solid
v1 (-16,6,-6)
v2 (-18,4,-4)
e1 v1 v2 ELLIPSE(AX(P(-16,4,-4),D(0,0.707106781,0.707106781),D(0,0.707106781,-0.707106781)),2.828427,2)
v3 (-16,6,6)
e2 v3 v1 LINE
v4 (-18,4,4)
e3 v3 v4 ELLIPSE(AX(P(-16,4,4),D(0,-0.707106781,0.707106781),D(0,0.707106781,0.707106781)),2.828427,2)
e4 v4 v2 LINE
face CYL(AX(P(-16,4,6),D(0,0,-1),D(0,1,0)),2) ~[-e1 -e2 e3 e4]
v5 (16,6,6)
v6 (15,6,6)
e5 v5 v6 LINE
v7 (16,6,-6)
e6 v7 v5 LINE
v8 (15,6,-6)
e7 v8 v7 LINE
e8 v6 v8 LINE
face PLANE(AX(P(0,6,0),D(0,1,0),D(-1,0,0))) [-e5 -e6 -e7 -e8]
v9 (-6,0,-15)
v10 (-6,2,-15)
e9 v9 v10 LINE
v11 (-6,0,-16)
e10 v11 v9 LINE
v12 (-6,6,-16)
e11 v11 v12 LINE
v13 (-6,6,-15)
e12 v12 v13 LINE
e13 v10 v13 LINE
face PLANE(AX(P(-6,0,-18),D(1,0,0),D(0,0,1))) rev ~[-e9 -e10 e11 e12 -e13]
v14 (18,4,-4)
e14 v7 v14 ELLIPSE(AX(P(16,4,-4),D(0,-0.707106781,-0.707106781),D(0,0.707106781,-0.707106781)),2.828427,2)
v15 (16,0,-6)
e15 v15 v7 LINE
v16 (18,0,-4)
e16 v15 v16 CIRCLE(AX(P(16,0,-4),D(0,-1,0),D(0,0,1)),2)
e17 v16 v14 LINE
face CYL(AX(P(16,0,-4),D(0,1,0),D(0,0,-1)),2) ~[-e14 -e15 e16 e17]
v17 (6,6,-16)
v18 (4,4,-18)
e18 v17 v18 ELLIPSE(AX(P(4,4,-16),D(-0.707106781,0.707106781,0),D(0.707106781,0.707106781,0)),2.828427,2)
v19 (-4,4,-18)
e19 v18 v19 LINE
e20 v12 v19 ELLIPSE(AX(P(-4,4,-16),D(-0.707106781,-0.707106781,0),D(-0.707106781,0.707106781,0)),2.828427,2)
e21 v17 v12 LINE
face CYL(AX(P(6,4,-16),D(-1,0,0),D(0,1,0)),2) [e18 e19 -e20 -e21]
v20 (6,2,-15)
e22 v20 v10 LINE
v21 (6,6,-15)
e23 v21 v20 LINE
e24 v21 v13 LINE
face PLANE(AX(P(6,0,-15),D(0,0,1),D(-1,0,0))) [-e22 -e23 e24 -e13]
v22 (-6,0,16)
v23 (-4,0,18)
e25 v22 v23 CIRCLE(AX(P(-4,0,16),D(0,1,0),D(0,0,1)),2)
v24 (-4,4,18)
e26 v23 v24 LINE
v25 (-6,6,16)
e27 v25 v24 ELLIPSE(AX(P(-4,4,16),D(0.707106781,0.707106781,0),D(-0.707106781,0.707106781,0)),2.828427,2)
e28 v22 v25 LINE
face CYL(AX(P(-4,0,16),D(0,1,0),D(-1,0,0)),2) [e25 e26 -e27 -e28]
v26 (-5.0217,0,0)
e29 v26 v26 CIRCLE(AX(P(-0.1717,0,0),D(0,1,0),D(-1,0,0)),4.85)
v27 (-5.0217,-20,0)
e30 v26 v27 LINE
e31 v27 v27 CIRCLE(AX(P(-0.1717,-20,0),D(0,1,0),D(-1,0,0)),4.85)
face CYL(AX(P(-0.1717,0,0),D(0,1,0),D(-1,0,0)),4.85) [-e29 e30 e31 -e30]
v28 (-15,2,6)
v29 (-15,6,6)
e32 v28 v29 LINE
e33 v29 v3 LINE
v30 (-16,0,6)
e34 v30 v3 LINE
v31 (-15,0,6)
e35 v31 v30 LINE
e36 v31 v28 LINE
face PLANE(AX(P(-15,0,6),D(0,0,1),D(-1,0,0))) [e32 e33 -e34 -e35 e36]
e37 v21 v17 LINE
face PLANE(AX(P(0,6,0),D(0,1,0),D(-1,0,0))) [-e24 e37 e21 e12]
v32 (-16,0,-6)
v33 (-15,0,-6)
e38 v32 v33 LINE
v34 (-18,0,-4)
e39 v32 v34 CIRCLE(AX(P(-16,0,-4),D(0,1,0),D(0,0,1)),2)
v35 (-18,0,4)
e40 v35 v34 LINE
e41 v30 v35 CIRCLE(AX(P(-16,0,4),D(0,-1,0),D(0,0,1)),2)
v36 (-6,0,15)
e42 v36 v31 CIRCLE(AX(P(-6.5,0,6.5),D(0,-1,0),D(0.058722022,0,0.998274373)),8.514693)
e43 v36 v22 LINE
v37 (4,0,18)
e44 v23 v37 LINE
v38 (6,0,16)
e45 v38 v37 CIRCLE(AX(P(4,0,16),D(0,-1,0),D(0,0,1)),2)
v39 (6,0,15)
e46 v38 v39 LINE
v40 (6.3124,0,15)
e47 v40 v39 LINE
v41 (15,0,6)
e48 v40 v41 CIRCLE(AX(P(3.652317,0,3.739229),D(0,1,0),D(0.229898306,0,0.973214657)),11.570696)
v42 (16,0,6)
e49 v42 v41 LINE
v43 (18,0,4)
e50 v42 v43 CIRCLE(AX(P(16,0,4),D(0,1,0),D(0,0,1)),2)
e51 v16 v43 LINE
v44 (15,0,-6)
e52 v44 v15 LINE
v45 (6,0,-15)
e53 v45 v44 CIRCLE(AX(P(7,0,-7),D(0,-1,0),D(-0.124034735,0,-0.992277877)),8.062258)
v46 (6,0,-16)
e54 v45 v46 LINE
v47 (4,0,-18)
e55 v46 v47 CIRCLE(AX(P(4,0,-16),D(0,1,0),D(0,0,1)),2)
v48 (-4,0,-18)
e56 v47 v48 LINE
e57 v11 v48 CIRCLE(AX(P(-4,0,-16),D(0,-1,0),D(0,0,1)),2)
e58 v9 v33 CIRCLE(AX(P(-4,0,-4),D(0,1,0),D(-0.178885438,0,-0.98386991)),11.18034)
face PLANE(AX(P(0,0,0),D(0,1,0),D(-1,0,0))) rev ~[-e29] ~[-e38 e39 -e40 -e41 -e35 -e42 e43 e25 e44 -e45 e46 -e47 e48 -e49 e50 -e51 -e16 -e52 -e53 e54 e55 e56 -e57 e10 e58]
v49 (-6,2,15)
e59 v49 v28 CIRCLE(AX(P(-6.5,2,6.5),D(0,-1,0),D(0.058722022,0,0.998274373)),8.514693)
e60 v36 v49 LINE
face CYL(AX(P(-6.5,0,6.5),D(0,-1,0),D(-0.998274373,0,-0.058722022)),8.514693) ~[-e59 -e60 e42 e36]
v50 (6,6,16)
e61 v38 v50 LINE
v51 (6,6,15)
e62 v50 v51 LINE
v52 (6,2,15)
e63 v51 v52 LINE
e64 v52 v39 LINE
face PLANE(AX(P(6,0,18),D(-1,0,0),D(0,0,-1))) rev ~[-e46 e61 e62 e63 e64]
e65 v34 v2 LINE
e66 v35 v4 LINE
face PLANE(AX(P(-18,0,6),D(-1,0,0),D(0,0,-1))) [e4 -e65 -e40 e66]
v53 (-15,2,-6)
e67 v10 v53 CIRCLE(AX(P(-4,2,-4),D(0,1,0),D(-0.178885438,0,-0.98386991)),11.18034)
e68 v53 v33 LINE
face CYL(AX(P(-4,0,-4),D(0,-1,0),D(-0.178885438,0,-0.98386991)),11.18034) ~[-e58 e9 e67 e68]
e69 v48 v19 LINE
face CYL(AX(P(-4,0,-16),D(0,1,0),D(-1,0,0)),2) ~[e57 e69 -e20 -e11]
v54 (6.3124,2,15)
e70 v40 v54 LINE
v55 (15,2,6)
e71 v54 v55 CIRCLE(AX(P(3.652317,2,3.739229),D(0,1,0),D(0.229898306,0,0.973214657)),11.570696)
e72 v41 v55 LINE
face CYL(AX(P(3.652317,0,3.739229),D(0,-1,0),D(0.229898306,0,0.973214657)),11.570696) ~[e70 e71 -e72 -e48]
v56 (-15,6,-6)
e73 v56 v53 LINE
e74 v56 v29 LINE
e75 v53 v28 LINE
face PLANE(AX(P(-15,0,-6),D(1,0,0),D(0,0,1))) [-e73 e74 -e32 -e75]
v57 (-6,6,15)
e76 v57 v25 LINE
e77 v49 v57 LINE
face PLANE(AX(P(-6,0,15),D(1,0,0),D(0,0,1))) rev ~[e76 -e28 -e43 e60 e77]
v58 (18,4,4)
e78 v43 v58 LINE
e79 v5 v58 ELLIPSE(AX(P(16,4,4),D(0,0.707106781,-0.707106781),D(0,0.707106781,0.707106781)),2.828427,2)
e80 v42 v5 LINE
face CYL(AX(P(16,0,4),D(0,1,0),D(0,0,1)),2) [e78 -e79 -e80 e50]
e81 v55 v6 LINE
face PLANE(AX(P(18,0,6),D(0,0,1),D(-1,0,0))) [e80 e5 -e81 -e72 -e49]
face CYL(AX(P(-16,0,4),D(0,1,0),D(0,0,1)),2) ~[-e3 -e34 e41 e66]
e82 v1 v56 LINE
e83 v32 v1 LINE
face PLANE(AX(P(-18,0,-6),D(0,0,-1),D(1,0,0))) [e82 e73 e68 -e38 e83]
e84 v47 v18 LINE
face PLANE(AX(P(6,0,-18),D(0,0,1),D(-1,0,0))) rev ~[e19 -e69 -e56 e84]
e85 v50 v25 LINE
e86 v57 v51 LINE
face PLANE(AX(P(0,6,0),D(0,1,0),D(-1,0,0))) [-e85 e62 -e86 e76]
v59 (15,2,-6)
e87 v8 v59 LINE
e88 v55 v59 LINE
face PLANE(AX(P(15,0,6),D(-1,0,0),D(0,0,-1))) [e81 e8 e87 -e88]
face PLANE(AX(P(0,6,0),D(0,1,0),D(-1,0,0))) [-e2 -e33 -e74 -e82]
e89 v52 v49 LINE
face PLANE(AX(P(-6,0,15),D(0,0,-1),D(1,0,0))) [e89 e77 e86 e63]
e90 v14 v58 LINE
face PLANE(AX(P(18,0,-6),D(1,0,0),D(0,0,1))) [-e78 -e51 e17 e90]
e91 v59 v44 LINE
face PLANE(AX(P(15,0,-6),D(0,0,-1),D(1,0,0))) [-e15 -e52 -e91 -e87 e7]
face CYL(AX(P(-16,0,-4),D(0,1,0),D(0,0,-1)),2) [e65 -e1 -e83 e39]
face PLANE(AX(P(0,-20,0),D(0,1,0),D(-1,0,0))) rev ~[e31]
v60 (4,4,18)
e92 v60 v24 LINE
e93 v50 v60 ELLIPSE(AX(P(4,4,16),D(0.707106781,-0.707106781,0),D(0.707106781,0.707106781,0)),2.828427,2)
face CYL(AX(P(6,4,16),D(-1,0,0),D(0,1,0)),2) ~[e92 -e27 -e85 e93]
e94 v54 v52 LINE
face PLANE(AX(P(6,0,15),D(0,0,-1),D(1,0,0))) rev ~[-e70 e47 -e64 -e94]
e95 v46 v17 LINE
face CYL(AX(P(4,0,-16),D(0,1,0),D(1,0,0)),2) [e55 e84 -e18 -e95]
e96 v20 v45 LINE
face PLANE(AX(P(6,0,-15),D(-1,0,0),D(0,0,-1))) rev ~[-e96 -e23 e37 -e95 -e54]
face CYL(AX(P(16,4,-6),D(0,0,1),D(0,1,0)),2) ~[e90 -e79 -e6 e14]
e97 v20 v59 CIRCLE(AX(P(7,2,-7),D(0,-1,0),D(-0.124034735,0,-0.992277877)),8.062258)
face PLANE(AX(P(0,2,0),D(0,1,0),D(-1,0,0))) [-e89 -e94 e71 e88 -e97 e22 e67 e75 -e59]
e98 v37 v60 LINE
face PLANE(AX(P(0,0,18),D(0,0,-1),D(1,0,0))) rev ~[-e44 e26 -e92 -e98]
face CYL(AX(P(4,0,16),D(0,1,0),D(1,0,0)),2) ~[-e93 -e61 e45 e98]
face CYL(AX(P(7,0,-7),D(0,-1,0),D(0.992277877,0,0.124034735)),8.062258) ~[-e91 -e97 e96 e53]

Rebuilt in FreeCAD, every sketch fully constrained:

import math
import FreeCAD as App
import Part
import Sketcher

V = App.Vector
Q = App.Units.Quantity


def edges_at(feature, points):
    """Names of the edges that pass closest to the given points."""
    edges = feature.Shape.Edges
    near = lambda p: min(range(len(edges)), key=lambda i: edges[i].distToShape(Part.Vertex(*p))[0])
    return sorted({f"Edge{near(p) + 1}" for p in points})


def add_polygon(sketch, points):
    """Adds a closed chain of lines whose ends are joined by coincident constraints."""
    first, n = sketch.GeometryCount, len(points)
    for a, b in zip(points, points[1:] + points[:1]):
        sketch.addGeometry(Part.LineSegment(App.Vector(*a, 0), App.Vector(*b, 0)), False)
    for i in range(n):
        sketch.addConstraint(Sketcher.Constraint("Coincident", first + i, 2, first + (i + 1) % n, 1))

doc = App.newDocument("Part")
body = doc.addObject("PartDesign::Body", "Body")
body.AllowCompound = True

sketch1 = doc.addObject("Sketcher::SketchObject", "Sketch")
body.addObject(sketch1)
sketch1.AttachmentSupport = (doc.XZ_Plane, [""])
sketch1.MapMode = "FlatFace"
add_polygon(sketch1, [(6, 15), (-6, 15), (-6, 18), (6, 18)])
add_polygon(sketch1, [(-18, 6), (-15, 6), (-15, -6), (-18, -6)])
add_polygon(sketch1, [(15, -6), (15, 6), (18, 6), (18, -6)])
add_polygon(sketch1, [(-6, -18), (-6, -15), (6, -15), (6, -18)])
sketch1.addConstraint([
    Sketcher.Constraint("Horizontal", 0),
    Sketcher.Constraint("Vertical", 1),
    Sketcher.Constraint("Horizontal", 2),
    Sketcher.Constraint("Vertical", 3),
    Sketcher.Constraint("Horizontal", 4),
    Sketcher.Constraint("Vertical", 5),
    Sketcher.Constraint("Horizontal", 6),
    Sketcher.Constraint("Vertical", 7),
    Sketcher.Constraint("Vertical", 8),
    Sketcher.Constraint("Horizontal", 9),
    Sketcher.Constraint("Vertical", 10),
    Sketcher.Constraint("Horizontal", 11),
    Sketcher.Constraint("Vertical", 12),
    Sketcher.Constraint("Horizontal", 13),
    Sketcher.Constraint("Vertical", 14),
    Sketcher.Constraint("Horizontal", 15),
    Sketcher.Constraint("Symmetric", 5, 2, 8, 2, -1, 1),
    Sketcher.Constraint("Symmetric", 7, 2, 10, 2, -1, 1),
    Sketcher.Constraint("Symmetric", 3, 2, 12, 2, -1, 1),
    Sketcher.Constraint("Symmetric", 1, 2, 14, 2, -1, 1),
    Sketcher.Constraint("Horizontal", 7, 2, 8, 2),
    Sketcher.Constraint("Vertical", 1, 2, 12, 2),
    Sketcher.Constraint("Equal", 11, 1),
    Sketcher.Constraint("Equal", 15, 5),
    Sketcher.Constraint("DistanceX", 0, 2, 0, 1, Q("12 mm")),
    Sketcher.Constraint("DistanceX", 4, 1, 4, 2, Q("3 mm")),
    Sketcher.Constraint("DistanceY", -1, 1, 0, 2, Q("15 mm")),
    Sketcher.Constraint("DistanceX", 4, 2, -1, 1, Q("15 mm")),
])
pad1 = doc.addObject("PartDesign::Pad", "Pad")
body.addObject(pad1)
pad1.Profile = sketch1
pad1.Length = 6
pad1.Reversed = True

sketch2 = doc.addObject("Sketcher::SketchObject", "Sketch001")
body.addObject(sketch2)
sketch2.AttachmentSupport = (doc.XZ_Plane, [""])
sketch2.MapMode = "FlatFace"
sketch2.addGeometry([
    Part.LineSegment(V(-6, 15, 0), V(6.3, 15, 0)),
    Part.ArcOfCircle(Part.Circle(V(3.7, 3.7, 0), V(0, 0, 1), 11.6), math.radians(11), math.radians(77)),
    Part.LineSegment(V(15, 6, 0), V(15, -6, 0)),
    Part.ArcOfCircle(Part.Circle(V(7, -7, 0), V(0, 0, 1), 8.1), math.radians(-97), math.radians(7)),
    Part.LineSegment(V(6, -15, 0), V(-6, -15, 0)),
    Part.ArcOfCircle(Part.Circle(V(-4, -4, 0), V(0, 0, 1), 11.2), math.radians(-170), math.radians(-100)),
    Part.LineSegment(V(-15, -6, 0), V(-15, 6, 0)),
    Part.ArcOfCircle(Part.Circle(V(-6.5, 6.5, 0), V(0, 0, 1), 8.5), math.radians(87), math.radians(183)),
    Part.Circle(V(-0.2, 0, 0), V(0, 0, 1), 4.8),
], False)
sketch2.addConstraint([
    Sketcher.Constraint("Coincident", 0, 2, 1, 2),
    Sketcher.Constraint("Coincident", 1, 1, 2, 1),
    Sketcher.Constraint("Coincident", 2, 2, 3, 2),
    Sketcher.Constraint("Coincident", 3, 1, 4, 1),
    Sketcher.Constraint("Coincident", 4, 2, 5, 2),
    Sketcher.Constraint("Coincident", 5, 1, 6, 1),
    Sketcher.Constraint("Coincident", 6, 2, 7, 2),
    Sketcher.Constraint("Coincident", 7, 1, 0, 1),
    Sketcher.Constraint("Horizontal", 0),
    Sketcher.Constraint("Vertical", 2),
    Sketcher.Constraint("Horizontal", 4),
    Sketcher.Constraint("Vertical", 6),
    Sketcher.Constraint("Symmetric", 1, 1, 5, 1, -1, 1),
    Sketcher.Constraint("Symmetric", 3, 1, 7, 1, -1, 1),
    Sketcher.Constraint("PointOnObject", 8, 3, -1),
    Sketcher.Constraint("Horizontal", 2, 2, 5, 1),
    Sketcher.Constraint("Horizontal", 1, 1, 6, 2),
    Sketcher.Constraint("Vertical", 4, 2, 7, 1),
    Sketcher.Constraint("Equal", 4, 2),
    Sketcher.Constraint("Diameter", 8, Q("9.7 mm")),
    Sketcher.Constraint("DistanceX", 4, 2, 4, 1, Q("12 mm")),
    Sketcher.Constraint("DistanceX", -1, 1, 3, 3, Q("7 mm")),
    Sketcher.Constraint("DistanceY", 3, 3, -1, 1, Q("7 mm")),
    Sketcher.Constraint("DistanceX", 5, 3, -1, 1, Q("4 mm")),
    Sketcher.Constraint("DistanceY", -1, 1, 0, 2, Q("15 mm")),
    Sketcher.Constraint("DistanceX", 7, 3, -1, 1, Q("6.5 mm")),
    Sketcher.Constraint("Radius", 1, Q("11.5707 mm")),
    Sketcher.Constraint("DistanceX", 1, 3, 0, 2, Q("2.66 mm")),
    Sketcher.Constraint("DistanceX", 8, 3, 1, 3, Q("3.824 mm")),
])
pocket1 = doc.addObject("PartDesign::Pocket", "Pocket")
body.addObject(pocket1)
pocket1.Profile = sketch2
pocket1.Length = 3

sketch3 = doc.addObject("Sketcher::SketchObject", "Sketch002")
body.addObject(sketch3)
sketch3.AttachmentSupport = (doc.XZ_Plane, [""])
sketch3.MapMode = "FlatFace"
sketch3.addGeometry([
    Part.LineSegment(V(-6, 15, 0), V(6, 15, 0)),
    Part.ArcOfCircle(Part.Circle(V(4, 4, 0), V(0, 0, 1), 12), math.radians(11), math.radians(77)),
    Part.LineSegment(V(15, 6, 0), V(15, -6, 0)),
    Part.ArcOfCircle(Part.Circle(V(7, -7, 0), V(0, 0, 1), 8), math.radians(-97), math.radians(7)),
    Part.LineSegment(V(6, -15, 0), V(-6, -15, 0)),
    Part.ArcOfCircle(Part.Circle(V(-4, -4, 0), V(0, 0, 1), 11), math.radians(-170), math.radians(-100)),
    Part.LineSegment(V(-15, -6, 0), V(-15, 6, 0)),
    Part.ArcOfCircle(Part.Circle(V(-6, 6, 0), V(0, 0, 1), 9), math.radians(87), math.radians(183)),
], False)
sketch3.addConstraint([
    Sketcher.Constraint("Coincident", 0, 2, 1, 2),
    Sketcher.Constraint("Coincident", 1, 1, 2, 1),
    Sketcher.Constraint("Coincident", 2, 2, 3, 2),
    Sketcher.Constraint("Coincident", 3, 1, 4, 1),
    Sketcher.Constraint("Coincident", 4, 2, 5, 2),
    Sketcher.Constraint("Coincident", 5, 1, 6, 1),
    Sketcher.Constraint("Coincident", 6, 2, 7, 2),
    Sketcher.Constraint("Coincident", 7, 1, 0, 1),
    Sketcher.Constraint("Horizontal", 0),
    Sketcher.Constraint("Vertical", 2),
    Sketcher.Constraint("Horizontal", 4),
    Sketcher.Constraint("Vertical", 6),
    Sketcher.Constraint("Symmetric", 1, 1, 5, 1, -1, 1),
    Sketcher.Constraint("Symmetric", 3, 1, 7, 1, -1, 1),
    Sketcher.Constraint("Horizontal", 2, 2, 5, 1),
    Sketcher.Constraint("Horizontal", 1, 1, 6, 2),
    Sketcher.Constraint("Vertical", 4, 2, 7, 1),
    Sketcher.Constraint("Equal", 4, 2),
    Sketcher.Constraint("DistanceX", 4, 2, 4, 1, Q("12 mm")),
    Sketcher.Constraint("DistanceX", -1, 1, 3, 3, Q("7 mm")),
    Sketcher.Constraint("DistanceY", 3, 3, -1, 1, Q("7 mm")),
    Sketcher.Constraint("DistanceX", 5, 3, -1, 1, Q("4 mm")),
    Sketcher.Constraint("DistanceY", -1, 1, 0, 2, Q("15 mm")),
    Sketcher.Constraint("DistanceX", 7, 3, -1, 1, Q("6.5 mm")),
    Sketcher.Constraint("Radius", 1, Q("11.5707 mm")),
    Sketcher.Constraint("DistanceX", 1, 3, 0, 2, Q("2.66 mm")),
])
pad2 = doc.addObject("PartDesign::Pad", "Pad001")
body.addObject(pad2)
pad2.Profile = sketch3
pad2.Length = 2
pad2.Reversed = True
doc.recompute()

fillet = doc.addObject("PartDesign::Fillet", "Fillet")
body.addObject(fillet)
fillet.Base = (pad2, edges_at(pad2, [
    (18, 3, -6),
    (6, 3, -18),
    (-6, 3, -18),
    (-18, 3, -6),
    (-18, 3, 6),
    (-6, 3, 18),
    (6, 3, 18),
    (18, 3, 6),
    (0, 6, 18),
    (-18, 6, 0),
    (0, 6, -18),
    (18, 6, 0),
]))
fillet.Radius = 2

sketch4 = doc.addObject("Sketcher::SketchObject", "Sketch003")
body.addObject(sketch4)
sketch4.AttachmentSupport = (doc.XZ_Plane, [""])
sketch4.MapMode = "FlatFace"
sketch4.addGeometry(Part.Circle(V(-0.2, 0, 0), V(0, 0, 1), 4.8), False)
sketch4.addConstraint([
    Sketcher.Constraint("PointOnObject", 0, 3, -1),
    Sketcher.Constraint("Diameter", 0, Q("9.7 mm")),
    Sketcher.Constraint("DistanceX", 0, 3, -1, 1, Q("0.1717 mm")),
])
pad3 = doc.addObject("PartDesign::Pad", "Pad002")
body.addObject(pad3)
pad3.Profile = sketch4
pad3.Length = 20

doc.recompute()
